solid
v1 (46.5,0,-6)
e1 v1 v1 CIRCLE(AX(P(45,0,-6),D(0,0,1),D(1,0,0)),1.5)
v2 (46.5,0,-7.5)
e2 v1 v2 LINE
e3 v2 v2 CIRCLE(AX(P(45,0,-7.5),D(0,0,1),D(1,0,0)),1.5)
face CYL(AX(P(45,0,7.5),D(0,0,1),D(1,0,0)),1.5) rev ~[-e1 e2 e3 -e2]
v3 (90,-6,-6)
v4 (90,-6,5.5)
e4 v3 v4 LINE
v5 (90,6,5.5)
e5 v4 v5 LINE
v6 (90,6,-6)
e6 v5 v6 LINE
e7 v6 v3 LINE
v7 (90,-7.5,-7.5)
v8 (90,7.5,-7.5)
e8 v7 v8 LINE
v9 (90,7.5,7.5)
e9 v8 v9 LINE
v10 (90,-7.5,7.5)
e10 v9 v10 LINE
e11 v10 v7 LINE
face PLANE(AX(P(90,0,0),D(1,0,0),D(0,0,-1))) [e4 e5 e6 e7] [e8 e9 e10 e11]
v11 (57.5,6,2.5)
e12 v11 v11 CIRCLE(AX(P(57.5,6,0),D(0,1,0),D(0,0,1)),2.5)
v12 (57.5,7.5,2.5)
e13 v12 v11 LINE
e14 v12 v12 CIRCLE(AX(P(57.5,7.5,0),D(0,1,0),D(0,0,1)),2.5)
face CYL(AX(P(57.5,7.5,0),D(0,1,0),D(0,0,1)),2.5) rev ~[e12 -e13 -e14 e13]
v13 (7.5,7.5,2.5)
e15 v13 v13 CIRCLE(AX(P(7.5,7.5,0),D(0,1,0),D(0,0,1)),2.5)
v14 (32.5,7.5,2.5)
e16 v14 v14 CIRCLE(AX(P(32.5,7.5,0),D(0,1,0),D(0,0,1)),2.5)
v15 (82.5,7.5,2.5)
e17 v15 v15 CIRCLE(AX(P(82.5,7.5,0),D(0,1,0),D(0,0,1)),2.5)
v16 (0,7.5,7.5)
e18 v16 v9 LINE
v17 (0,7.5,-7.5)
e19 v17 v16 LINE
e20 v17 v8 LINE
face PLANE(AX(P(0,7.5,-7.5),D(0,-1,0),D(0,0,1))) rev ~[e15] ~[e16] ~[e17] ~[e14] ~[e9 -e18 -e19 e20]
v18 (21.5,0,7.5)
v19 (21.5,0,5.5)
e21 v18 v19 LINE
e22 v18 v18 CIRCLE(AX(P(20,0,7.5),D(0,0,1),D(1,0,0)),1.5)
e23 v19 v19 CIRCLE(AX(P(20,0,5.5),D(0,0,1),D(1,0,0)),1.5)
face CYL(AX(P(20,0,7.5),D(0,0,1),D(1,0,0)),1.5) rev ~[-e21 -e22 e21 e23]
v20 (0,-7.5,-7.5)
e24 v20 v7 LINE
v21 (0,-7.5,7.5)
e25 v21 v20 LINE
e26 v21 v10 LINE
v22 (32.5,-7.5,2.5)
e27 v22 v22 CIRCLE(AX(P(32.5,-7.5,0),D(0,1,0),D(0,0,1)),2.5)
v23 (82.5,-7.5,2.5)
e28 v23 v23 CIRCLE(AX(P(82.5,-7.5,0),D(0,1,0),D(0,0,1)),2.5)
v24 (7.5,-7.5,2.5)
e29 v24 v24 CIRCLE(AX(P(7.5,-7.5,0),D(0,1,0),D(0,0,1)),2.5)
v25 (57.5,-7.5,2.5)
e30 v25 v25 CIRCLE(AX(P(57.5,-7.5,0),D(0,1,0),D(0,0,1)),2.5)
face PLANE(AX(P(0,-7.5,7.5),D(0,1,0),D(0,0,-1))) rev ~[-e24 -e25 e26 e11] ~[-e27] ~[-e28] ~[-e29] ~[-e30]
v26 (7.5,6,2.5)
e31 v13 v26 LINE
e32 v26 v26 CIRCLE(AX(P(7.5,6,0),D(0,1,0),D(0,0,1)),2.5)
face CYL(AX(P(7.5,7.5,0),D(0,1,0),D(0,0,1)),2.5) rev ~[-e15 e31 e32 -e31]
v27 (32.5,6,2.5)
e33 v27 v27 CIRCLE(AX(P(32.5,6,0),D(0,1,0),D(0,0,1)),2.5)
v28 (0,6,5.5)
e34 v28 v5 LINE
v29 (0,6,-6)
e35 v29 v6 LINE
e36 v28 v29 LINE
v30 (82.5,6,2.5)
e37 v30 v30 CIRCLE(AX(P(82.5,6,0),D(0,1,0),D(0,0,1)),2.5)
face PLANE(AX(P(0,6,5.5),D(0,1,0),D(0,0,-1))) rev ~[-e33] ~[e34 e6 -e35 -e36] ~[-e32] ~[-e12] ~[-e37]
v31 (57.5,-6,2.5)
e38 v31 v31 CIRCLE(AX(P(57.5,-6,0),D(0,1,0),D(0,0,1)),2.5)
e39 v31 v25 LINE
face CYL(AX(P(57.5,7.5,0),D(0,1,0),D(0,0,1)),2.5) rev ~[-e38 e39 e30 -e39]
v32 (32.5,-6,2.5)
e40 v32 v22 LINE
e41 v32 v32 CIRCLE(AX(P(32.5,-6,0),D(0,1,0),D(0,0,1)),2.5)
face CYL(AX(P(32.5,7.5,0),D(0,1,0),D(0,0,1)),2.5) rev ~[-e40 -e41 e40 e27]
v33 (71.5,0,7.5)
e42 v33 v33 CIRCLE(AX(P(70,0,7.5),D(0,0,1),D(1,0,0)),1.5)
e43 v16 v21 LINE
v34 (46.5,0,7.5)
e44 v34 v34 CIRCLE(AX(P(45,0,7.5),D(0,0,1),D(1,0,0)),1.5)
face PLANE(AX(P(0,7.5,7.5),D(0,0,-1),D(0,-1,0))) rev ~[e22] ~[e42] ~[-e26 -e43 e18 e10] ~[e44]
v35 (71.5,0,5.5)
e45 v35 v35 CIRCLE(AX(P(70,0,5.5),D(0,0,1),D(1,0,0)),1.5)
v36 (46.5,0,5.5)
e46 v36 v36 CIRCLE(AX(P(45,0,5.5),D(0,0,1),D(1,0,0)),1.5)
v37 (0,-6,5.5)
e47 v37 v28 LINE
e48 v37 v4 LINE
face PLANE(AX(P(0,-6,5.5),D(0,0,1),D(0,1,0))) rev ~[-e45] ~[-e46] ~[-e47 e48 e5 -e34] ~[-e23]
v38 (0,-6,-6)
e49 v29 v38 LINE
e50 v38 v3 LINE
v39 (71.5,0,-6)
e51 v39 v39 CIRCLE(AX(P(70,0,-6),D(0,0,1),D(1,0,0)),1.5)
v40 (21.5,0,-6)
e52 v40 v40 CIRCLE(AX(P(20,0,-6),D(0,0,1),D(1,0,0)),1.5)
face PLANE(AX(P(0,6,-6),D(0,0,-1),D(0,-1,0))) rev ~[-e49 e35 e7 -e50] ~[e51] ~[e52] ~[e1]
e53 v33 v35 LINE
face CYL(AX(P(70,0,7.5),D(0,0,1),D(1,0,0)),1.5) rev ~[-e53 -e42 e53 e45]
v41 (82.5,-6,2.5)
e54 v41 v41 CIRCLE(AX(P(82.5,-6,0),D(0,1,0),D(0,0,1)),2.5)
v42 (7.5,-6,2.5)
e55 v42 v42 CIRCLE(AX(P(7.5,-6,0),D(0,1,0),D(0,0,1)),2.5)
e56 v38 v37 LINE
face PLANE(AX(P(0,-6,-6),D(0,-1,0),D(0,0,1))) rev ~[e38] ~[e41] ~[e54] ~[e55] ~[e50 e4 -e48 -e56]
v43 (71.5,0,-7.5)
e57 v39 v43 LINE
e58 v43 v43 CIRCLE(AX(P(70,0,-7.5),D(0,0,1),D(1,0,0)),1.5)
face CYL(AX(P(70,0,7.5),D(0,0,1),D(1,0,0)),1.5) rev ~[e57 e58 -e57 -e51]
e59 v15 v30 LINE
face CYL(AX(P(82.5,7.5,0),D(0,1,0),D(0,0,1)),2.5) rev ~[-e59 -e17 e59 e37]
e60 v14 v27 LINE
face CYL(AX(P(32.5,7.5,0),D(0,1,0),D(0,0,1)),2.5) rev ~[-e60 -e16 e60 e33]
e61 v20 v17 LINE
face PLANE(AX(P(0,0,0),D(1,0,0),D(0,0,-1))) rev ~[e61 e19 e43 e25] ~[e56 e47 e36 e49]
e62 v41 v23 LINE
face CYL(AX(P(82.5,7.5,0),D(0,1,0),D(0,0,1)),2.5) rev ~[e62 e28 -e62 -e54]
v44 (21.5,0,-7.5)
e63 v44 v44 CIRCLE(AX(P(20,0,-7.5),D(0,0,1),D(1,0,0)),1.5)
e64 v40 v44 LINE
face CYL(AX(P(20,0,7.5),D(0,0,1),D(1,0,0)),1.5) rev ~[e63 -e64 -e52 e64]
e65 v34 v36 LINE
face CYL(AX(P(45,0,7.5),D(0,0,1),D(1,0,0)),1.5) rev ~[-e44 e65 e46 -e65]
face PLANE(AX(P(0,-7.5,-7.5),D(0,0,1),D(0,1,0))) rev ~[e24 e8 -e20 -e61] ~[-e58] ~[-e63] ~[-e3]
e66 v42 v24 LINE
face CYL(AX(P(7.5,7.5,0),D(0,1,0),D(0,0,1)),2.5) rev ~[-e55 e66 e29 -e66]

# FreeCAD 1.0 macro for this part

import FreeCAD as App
import Part
import Sketcher

V = App.Vector


def add_polygon(sketch, points):
    """Adds a closed chain of lines whose ends are joined by coincident constraints."""
    first, n = sketch.GeometryCount, len(points)
    for a, b in zip(points, points[1:] + points[:1]):
        sketch.addGeometry(Part.LineSegment(App.Vector(*a, 0), App.Vector(*b, 0)), False)
    for i in range(n):
        sketch.addConstraint(Sketcher.Constraint("Coincident", first + i, 2, first + (i + 1) % n, 1))

doc = App.newDocument("Part")
body = doc.addObject("PartDesign::Body", "Body")

# Sketch on YZ plane
sketch1 = body.newObject("Sketcher::SketchObject", "Sketch")
sketch1.AttachmentSupport = (doc.getObject("YZ_Plane"), [""])
sketch1.MapMode = "FlatFace"
add_polygon(sketch1, [(-8, -8), (8, -8), (8, 8), (-8, 8)])  # lines 0-3
add_polygon(sketch1, [(-6, -6), (-6, 6), (6, 6), (6, -6)])  # lines 4-7
sketch1.addConstraint([
    Sketcher.Constraint("Horizontal", 0),
    Sketcher.Constraint("Vertical", 1),
    Sketcher.Constraint("Horizontal", 2),
    Sketcher.Constraint("Vertical", 3),
    Sketcher.Constraint("Vertical", 4),
    Sketcher.Constraint("Horizontal", 5),
    Sketcher.Constraint("Vertical", 6),
    Sketcher.Constraint("Horizontal", 7),
    Sketcher.Constraint("Symmetric", 0, 2, 2, 2, -1, 1),
    Sketcher.Constraint("Equal", 2, 1),
    Sketcher.Constraint("DistanceX", 0, 1, 0, 2, 15.0),
    Sketcher.Constraint("DistanceX", 5, 1, 5, 2, 12.0),
    Sketcher.Constraint("DistanceY", 4, 1, 4, 2, 11.5),
    Sketcher.Constraint("DistanceX", 4, 2, -1, 1, 6.0),
    Sketcher.Constraint("DistanceY", 6, 2, -1, 1, 6.0),
])
pad1 = body.newObject("PartDesign::Pad", "Pad")
pad1.Profile = sketch1
pad1.Length = 90

# Sketch on XZ plane
sketch2 = body.newObject("Sketcher::SketchObject", "Sketch001")
sketch2.AttachmentSupport = (doc.getObject("XZ_Plane"), [""])
sketch2.MapMode = "FlatFace"
sketch2.AttachmentOffset = App.Placement(V(0, 0, -7.5), App.Rotation())
sketch2.addGeometry([
    Part.Circle(V(7.5, 0, 0), V(0, 0, 1), 2.5),
    Part.Circle(V(32.5, 0, 0), V(0, 0, 1), 2.5),
    Part.Circle(V(57.5, 0, 0), V(0, 0, 1), 2.5),
    Part.Circle(V(82.5, 0, 0), V(0, 0, 1), 2.5),
], False)
sketch2.addConstraint([
    Sketcher.Constraint("Equal", 0, 1),
    Sketcher.Constraint("Equal", 1, 2),
    Sketcher.Constraint("Equal", 2, 3),
    Sketcher.Constraint("PointOnObject", 0, 3, -1),
    Sketcher.Constraint("PointOnObject", 1, 3, -1),
    Sketcher.Constraint("PointOnObject", 2, 3, -1),
    Sketcher.Constraint("PointOnObject", 3, 3, -1),
    Sketcher.Constraint("Diameter", 0, 5.0),
    Sketcher.Constraint("DistanceX", 0, 3, 1, 3, 25.0),
    Sketcher.Constraint("DistanceX", 1, 3, 2, 3, 25.0),
    Sketcher.Constraint("DistanceX", 2, 3, 3, 3, 25.0),
    Sketcher.Constraint("DistanceX", -1, 1, 0, 3, 7.5),
])
pocket1 = body.newObject("PartDesign::Pocket", "Pocket")
pocket1.Profile = sketch2
pocket1.Type = "ThroughAll"
pocket1.Reversed = True

# Sketch on XY plane
sketch3 = body.newObject("Sketcher::SketchObject", "Sketch002")
sketch3.AttachmentSupport = (doc.getObject("XY_Plane"), [""])
sketch3.MapMode = "FlatFace"
sketch3.AttachmentOffset = App.Placement(V(0, 0, 7.5), App.Rotation())
sketch3.addGeometry([
    Part.Circle(V(45, 0, 0), V(0, 0, 1), 1.5),
    Part.Circle(V(20, 0, 0), V(0, 0, 1), 1.5),
    Part.Circle(V(70, 0, 0), V(0, 0, 1), 1.5),
], False)
sketch3.addConstraint([
    Sketcher.Constraint("Equal", 0, 1),
    Sketcher.Constraint("Equal", 1, 2),
    Sketcher.Constraint("PointOnObject", 0, 3, -1),
    Sketcher.Constraint("PointOnObject", 1, 3, -1),
    Sketcher.Constraint("PointOnObject", 2, 3, -1),
    Sketcher.Constraint("Diameter", 0, 3.0),
    Sketcher.Constraint("DistanceX", -1, 1, 0, 3, 45.0),
    Sketcher.Constraint("DistanceX", -1, 1, 1, 3, 20.0),
    Sketcher.Constraint("DistanceX", -1, 1, 2, 3, 70.0),
])
pocket2 = body.newObject("PartDesign::Pocket", "Pocket001")
pocket2.Profile = sketch3
pocket2.Type = "ThroughAll"

doc.recompute()
